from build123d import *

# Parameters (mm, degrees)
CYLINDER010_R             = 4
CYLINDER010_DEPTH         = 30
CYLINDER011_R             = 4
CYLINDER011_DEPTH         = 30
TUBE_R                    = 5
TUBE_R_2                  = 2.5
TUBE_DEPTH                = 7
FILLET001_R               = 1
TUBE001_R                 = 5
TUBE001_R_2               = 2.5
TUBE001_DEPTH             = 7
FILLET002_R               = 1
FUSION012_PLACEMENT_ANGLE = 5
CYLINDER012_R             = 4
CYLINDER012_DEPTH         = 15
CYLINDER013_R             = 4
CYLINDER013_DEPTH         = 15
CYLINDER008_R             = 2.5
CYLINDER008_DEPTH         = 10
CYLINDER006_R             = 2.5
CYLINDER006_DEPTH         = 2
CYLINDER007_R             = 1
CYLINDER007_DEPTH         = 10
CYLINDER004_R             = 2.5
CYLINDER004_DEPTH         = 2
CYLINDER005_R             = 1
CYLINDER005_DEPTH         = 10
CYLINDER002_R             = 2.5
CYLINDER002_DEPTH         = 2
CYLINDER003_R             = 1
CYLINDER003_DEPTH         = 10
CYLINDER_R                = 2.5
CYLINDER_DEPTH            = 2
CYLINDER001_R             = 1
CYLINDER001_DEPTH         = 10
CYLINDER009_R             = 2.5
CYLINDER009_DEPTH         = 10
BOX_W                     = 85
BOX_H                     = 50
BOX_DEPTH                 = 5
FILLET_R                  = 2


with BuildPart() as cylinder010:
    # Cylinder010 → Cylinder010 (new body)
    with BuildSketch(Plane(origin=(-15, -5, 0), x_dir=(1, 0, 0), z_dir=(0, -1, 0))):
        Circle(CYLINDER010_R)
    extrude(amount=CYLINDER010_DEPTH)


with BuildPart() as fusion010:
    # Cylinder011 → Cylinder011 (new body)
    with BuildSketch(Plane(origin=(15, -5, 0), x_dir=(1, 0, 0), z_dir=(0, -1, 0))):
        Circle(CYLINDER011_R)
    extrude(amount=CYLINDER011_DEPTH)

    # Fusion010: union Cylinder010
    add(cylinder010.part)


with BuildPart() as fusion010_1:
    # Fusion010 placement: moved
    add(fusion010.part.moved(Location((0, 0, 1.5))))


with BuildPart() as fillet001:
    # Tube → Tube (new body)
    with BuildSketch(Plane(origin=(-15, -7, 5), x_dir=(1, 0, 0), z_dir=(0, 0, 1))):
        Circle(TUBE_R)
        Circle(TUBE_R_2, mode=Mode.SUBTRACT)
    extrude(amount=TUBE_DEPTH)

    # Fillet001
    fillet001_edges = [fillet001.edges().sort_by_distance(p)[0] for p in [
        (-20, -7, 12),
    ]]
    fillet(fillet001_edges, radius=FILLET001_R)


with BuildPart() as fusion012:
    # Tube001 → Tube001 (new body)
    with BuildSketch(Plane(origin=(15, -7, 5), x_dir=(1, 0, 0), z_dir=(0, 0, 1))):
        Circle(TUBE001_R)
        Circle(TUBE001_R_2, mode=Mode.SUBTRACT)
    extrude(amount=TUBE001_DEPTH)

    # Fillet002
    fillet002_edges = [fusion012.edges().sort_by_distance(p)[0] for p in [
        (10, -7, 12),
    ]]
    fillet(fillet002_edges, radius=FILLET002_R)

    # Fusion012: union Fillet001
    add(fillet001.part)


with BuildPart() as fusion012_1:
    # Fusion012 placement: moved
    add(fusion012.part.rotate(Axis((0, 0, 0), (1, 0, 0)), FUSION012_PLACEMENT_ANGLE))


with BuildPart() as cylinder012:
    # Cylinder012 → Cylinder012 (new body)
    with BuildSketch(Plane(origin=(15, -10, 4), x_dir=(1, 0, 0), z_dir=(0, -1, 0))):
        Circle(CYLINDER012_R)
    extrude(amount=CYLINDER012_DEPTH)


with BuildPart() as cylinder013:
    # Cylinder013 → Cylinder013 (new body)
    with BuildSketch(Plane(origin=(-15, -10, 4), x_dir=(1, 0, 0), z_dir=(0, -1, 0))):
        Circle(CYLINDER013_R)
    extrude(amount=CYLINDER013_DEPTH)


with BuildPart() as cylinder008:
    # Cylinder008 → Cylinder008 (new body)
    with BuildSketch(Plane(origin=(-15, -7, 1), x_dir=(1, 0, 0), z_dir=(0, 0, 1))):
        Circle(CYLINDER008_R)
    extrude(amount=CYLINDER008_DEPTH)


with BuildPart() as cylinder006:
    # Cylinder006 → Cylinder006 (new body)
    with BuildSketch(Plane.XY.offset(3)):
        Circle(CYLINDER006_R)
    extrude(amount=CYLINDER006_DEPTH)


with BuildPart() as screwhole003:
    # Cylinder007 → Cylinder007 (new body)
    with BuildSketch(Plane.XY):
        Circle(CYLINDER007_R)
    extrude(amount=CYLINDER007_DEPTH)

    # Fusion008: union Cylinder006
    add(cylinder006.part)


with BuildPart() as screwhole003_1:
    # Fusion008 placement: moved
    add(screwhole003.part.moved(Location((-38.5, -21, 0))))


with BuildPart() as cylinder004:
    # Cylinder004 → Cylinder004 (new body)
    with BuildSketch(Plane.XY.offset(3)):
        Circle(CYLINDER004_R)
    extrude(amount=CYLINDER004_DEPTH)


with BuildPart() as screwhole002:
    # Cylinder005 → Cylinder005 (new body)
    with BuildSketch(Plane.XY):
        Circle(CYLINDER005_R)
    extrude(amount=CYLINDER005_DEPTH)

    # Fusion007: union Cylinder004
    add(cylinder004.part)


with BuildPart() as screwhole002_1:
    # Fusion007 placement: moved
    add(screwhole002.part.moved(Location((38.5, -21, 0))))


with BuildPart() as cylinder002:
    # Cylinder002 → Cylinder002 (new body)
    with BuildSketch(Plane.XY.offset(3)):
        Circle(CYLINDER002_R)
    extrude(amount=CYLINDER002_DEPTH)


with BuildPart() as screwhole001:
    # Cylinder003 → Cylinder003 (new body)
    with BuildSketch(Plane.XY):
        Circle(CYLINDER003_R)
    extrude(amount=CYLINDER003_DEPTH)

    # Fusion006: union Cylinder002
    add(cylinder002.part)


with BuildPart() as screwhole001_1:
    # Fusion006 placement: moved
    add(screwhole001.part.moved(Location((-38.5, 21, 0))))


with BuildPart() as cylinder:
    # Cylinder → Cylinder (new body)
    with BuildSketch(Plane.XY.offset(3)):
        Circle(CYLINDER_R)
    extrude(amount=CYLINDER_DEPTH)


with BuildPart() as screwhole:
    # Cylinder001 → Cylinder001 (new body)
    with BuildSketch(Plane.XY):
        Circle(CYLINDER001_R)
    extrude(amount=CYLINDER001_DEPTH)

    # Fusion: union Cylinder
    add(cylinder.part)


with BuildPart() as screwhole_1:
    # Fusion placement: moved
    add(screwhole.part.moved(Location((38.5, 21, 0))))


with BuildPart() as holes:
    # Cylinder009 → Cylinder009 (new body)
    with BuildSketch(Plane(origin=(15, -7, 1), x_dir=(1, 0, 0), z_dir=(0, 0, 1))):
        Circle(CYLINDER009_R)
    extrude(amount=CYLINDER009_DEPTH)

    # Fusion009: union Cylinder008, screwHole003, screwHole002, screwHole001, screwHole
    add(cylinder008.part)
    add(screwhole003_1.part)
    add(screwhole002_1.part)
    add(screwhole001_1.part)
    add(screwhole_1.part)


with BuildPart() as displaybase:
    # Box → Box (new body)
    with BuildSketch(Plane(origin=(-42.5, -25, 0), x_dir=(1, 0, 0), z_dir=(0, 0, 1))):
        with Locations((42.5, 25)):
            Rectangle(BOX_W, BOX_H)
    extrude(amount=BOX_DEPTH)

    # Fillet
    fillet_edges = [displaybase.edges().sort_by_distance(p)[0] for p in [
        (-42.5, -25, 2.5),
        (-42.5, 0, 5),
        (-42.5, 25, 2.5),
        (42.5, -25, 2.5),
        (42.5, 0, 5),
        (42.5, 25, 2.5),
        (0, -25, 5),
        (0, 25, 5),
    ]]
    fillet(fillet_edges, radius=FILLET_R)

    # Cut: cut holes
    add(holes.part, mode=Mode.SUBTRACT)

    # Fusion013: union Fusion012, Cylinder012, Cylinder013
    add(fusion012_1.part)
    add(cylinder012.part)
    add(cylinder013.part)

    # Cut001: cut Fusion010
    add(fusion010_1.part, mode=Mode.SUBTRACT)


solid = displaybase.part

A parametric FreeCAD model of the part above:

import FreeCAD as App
import Part
import Sketcher


def edges_at(feature, points):
    """Names of the edges that pass closest to the given points."""
    edges = feature.Shape.Edges
    near = lambda p: min(range(len(edges)), key=lambda i: edges[i].distToShape(Part.Vertex(*p))[0])
    return sorted({f"Edge{near(p) + 1}" for p in points})


def add_polygon(sketch, points):
    """Adds a closed chain of lines whose ends are joined by coincident constraints."""
    first, n = sketch.GeometryCount, len(points)
    for a, b in zip(points, points[1:] + points[:1]):
        sketch.addGeometry(Part.LineSegment(App.Vector(*a, 0), App.Vector(*b, 0)), False)
    for i in range(n):
        sketch.addConstraint(Sketcher.Constraint("Coincident", first + i, 2, first + (i + 1) % n, 1))

doc = App.newDocument("Part")
body = doc.addObject("PartDesign::Body", "Body")

sketch1 = body.newObject("Sketcher::SketchObject", "Sketch")
sketch1.AttachmentSupport = (doc.getObject("XZ_Plane"), [""])
sketch1.MapMode = "FlatFace"
sketch1.AttachmentOffset = App.Placement(App.Vector(0, 0, 5), App.Rotation())
sketch1.addGeometry(Part.Circle(App.Vector(-15, 0, 0), App.Vector(0, 0, 1), 4), False)
sketch1.addConstraint([
    Sketcher.Constraint("PointOnObject", 0, 3, -1),
    Sketcher.Constraint("Diameter", 0, 8.0),
    Sketcher.Constraint("DistanceX", 0, 3, -1, 1, 15.0),
])
pad1 = body.newObject("PartDesign::Pad", "Pad")
pad1.Profile = sketch1
pad1.Length = 30
body2 = doc.addObject("PartDesign::Body", "Body001")
body2.AllowCompound = True

sketch2 = body2.newObject("Sketcher::SketchObject", "Sketch001")
sketch2.AttachmentSupport = (doc.getObject("XZ_Plane001"), [""])
sketch2.MapMode = "FlatFace"
sketch2.AttachmentOffset = App.Placement(App.Vector(0, 0, 5), App.Rotation())
sketch2.addGeometry(Part.Circle(App.Vector(15, 0, 0), App.Vector(0, 0, 1), 4), False)
sketch2.addConstraint([
    Sketcher.Constraint("PointOnObject", 0, 3, -1),
    Sketcher.Constraint("Diameter", 0, 8.0),
    Sketcher.Constraint("DistanceX", -1, 1, 0, 3, 15.0),
])
pad2 = body2.newObject("PartDesign::Pad", "Pad001")
pad2.Profile = sketch2
pad2.Length = 30
doc.recompute()

boolean = body2.newObject("PartDesign::Boolean", "Boolean")
boolean.Type = "Fuse"
boolean.addObjects([body])
body3 = doc.addObject("PartDesign::Body", "Body002")
body3.AllowCompound = True
doc.recompute()

body2.Placement = App.Placement(App.Vector(0, 0, 1.5), App.Rotation(App.Vector(0, 0, 1), 0))
boolean2 = body3.newObject("PartDesign::Boolean", "Boolean001")
boolean2.Type = "Fuse"
boolean2.addObjects([body2])
body4 = doc.addObject("PartDesign::Body", "Body003")

sketch3 = body4.newObject("Sketcher::SketchObject", "Sketch002")
sketch3.AttachmentSupport = (doc.getObject("XY_Plane003"), [""])
sketch3.MapMode = "FlatFace"
sketch3.AttachmentOffset = App.Placement(App.Vector(0, 0, 5), App.Rotation())
sketch3.addGeometry([
    Part.Circle(App.Vector(-15, -7, 0), App.Vector(0, 0, 1), 5),
    Part.Circle(App.Vector(-15, -7, 0), App.Vector(0, 0, 1), 2.5),
], False)
sketch3.addConstraint([
    Sketcher.Constraint("Coincident", 1, 3, 0, 3),
    Sketcher.Constraint("Diameter", 0, 10.0),
    Sketcher.Constraint("Diameter", 1, 5.0),
    Sketcher.Constraint("DistanceX", 0, 3, -1, 1, 15.0),
    Sketcher.Constraint("DistanceY", 0, 3, -1, 1, 7.0),
])
pad3 = body4.newObject("PartDesign::Pad", "Pad002")
pad3.Profile = sketch3
pad3.Length = 7
doc.recompute()

fillet = body4.newObject("PartDesign::Fillet", "Fillet")
fillet.Base = (pad3, edges_at(pad3, [(-20, -7, 12)]))
fillet.Radius = 1
body5 = doc.addObject("PartDesign::Body", "Body004")
body5.AllowCompound = True

sketch4 = body5.newObject("Sketcher::SketchObject", "Sketch003")
sketch4.AttachmentSupport = (doc.getObject("XY_Plane004"), [""])
sketch4.MapMode = "FlatFace"
sketch4.AttachmentOffset = App.Placement(App.Vector(0, 0, 5), App.Rotation())
sketch4.addGeometry([
    Part.Circle(App.Vector(15, -7, 0), App.Vector(0, 0, 1), 5),
    Part.Circle(App.Vector(15, -7, 0), App.Vector(0, 0, 1), 2.5),
], False)
sketch4.addConstraint([
    Sketcher.Constraint("Coincident", 1, 3, 0, 3),
    Sketcher.Constraint("Diameter", 0, 10.0),
    Sketcher.Constraint("Diameter", 1, 5.0),
    Sketcher.Constraint("DistanceX", -1, 1, 0, 3, 15.0),
    Sketcher.Constraint("DistanceY", 0, 3, -1, 1, 7.0),
])
pad4 = body5.newObject("PartDesign::Pad", "Pad003")
pad4.Profile = sketch4
pad4.Length = 7
doc.recompute()

fillet2 = body5.newObject("PartDesign::Fillet", "Fillet001")
fillet2.Base = (pad4, edges_at(pad4, [(10, -7, 12)]))
fillet2.Radius = 1
doc.recompute()

boolean3 = body5.newObject("PartDesign::Boolean", "Boolean002")
boolean3.Type = "Fuse"
boolean3.addObjects([body4])
body6 = doc.addObject("PartDesign::Body", "Body005")
body6.AllowCompound = True
doc.recompute()

body5.Placement = App.Placement(App.Vector(0, 0, 0), App.Rotation(App.Vector(1, 0, 0), 5))
boolean4 = body6.newObject("PartDesign::Boolean", "Boolean003")
boolean4.Type = "Fuse"
boolean4.addObjects([body5])
body7 = doc.addObject("PartDesign::Body", "Body006")

sketch5 = body7.newObject("Sketcher::SketchObject", "Sketch004")
sketch5.AttachmentSupport = (doc.getObject("XZ_Plane006"), [""])
sketch5.MapMode = "FlatFace"
sketch5.AttachmentOffset = App.Placement(App.Vector(0, 0, 10), App.Rotation())
sketch5.addGeometry(Part.Circle(App.Vector(15, 4, 0), App.Vector(0, 0, 1), 4), False)
sketch5.addConstraint([
    Sketcher.Constraint("Diameter", 0, 8.0),
    Sketcher.Constraint("DistanceX", -1, 1, 0, 3, 15.0),
    Sketcher.Constraint("DistanceY", -1, 1, 0, 3, 4.0),
])
pad5 = body7.newObject("PartDesign::Pad", "Pad004")
pad5.Profile = sketch5
pad5.Length = 15
body8 = doc.addObject("PartDesign::Body", "Body007")

sketch6 = body8.newObject("Sketcher::SketchObject", "Sketch005")
sketch6.AttachmentSupport = (doc.getObject("XZ_Plane007"), [""])
sketch6.MapMode = "FlatFace"
sketch6.AttachmentOffset = App.Placement(App.Vector(0, 0, 10), App.Rotation())
sketch6.addGeometry(Part.Circle(App.Vector(-15, 4, 0), App.Vector(0, 0, 1), 4), False)
sketch6.addConstraint([
    Sketcher.Constraint("Diameter", 0, 8.0),
    Sketcher.Constraint("DistanceX", 0, 3, -1, 1, 15.0),
    Sketcher.Constraint("DistanceY", -1, 1, 0, 3, 4.0),
])
pad6 = body8.newObject("PartDesign::Pad", "Pad005")
pad6.Profile = sketch6
pad6.Length = 15
body9 = doc.addObject("PartDesign::Body", "Body008")

sketch7 = body9.newObject("Sketcher::SketchObject", "Sketch006")
sketch7.AttachmentSupport = (doc.getObject("XY_Plane008"), [""])
sketch7.MapMode = "FlatFace"
sketch7.AttachmentOffset = App.Placement(App.Vector(0, 0, 1), App.Rotation())
sketch7.addGeometry(Part.Circle(App.Vector(-15, -7, 0), App.Vector(0, 0, 1), 2.5), False)
sketch7.addConstraint([
    Sketcher.Constraint("Diameter", 0, 5.0),
    Sketcher.Constraint("DistanceX", 0, 3, -1, 1, 15.0),
    Sketcher.Constraint("DistanceY", 0, 3, -1, 1, 7.0),
])
pad7 = body9.newObject("PartDesign::Pad", "Pad006")
pad7.Profile = sketch7
pad7.Length = 10
body10 = doc.addObject("PartDesign::Body", "Body009")

sketch8 = body10.newObject("Sketcher::SketchObject", "Sketch007")
sketch8.AttachmentSupport = (doc.getObject("XY_Plane009"), [""])
sketch8.MapMode = "FlatFace"
sketch8.AttachmentOffset = App.Placement(App.Vector(0, 0, 3), App.Rotation())
sketch8.addGeometry(Part.Circle(App.Vector(0, 0, 0), App.Vector(0, 0, 1), 2.5), False)
sketch8.addConstraint([
    Sketcher.Constraint("Coincident", 0, 3, -1, 1),
    Sketcher.Constraint("Diameter", 0, 5.0),
])
pad8 = body10.newObject("PartDesign::Pad", "Pad007")
pad8.Profile = sketch8
pad8.Length = 2
body11 = doc.addObject("PartDesign::Body", "Body010")

sketch9 = body11.newObject("Sketcher::SketchObject", "Sketch008")
sketch9.AttachmentSupport = (doc.getObject("XY_Plane010"), [""])
sketch9.MapMode = "FlatFace"
sketch9.addGeometry(Part.Circle(App.Vector(0, 0, 0), App.Vector(0, 0, 1), 1), False)
sketch9.addConstraint([
    Sketcher.Constraint("Coincident", 0, 3, -1, 1),
    Sketcher.Constraint("Diameter", 0, 2.0),
])
pad9 = body11.newObject("PartDesign::Pad", "Pad008")
pad9.Profile = sketch9
pad9.Length = 10
doc.recompute()

boolean5 = body11.newObject("PartDesign::Boolean", "Boolean004")
boolean5.Type = "Fuse"
boolean5.addObjects([body10])
body12 = doc.addObject("PartDesign::Body", "Body011")
doc.recompute()

body11.Placement = App.Placement(App.Vector(-38.5, -21, 0), App.Rotation(App.Vector(0, 0, 1), 0))
boolean6 = body12.newObject("PartDesign::Boolean", "Boolean005")
boolean6.Type = "Fuse"
boolean6.addObjects([body11])
body13 = doc.addObject("PartDesign::Body", "Body012")

sketch10 = body13.newObject("Sketcher::SketchObject", "Sketch009")
sketch10.AttachmentSupport = (doc.getObject("XY_Plane012"), [""])
sketch10.MapMode = "FlatFace"
sketch10.AttachmentOffset = App.Placement(App.Vector(0, 0, 3), App.Rotation())
sketch10.addGeometry(Part.Circle(App.Vector(0, 0, 0), App.Vector(0, 0, 1), 2.5), False)
sketch10.addConstraint([
    Sketcher.Constraint("Coincident", 0, 3, -1, 1),
    Sketcher.Constraint("Diameter", 0, 5.0),
])
pad10 = body13.newObject("PartDesign::Pad", "Pad009")
pad10.Profile = sketch10
pad10.Length = 2
body14 = doc.addObject("PartDesign::Body", "Body013")

sketch11 = body14.newObject("Sketcher::SketchObject", "Sketch010")
sketch11.AttachmentSupport = (doc.getObject("XY_Plane013"), [""])
sketch11.MapMode = "FlatFace"
sketch11.addGeometry(Part.Circle(App.Vector(0, 0, 0), App.Vector(0, 0, 1), 1), False)
sketch11.addConstraint([
    Sketcher.Constraint("Coincident", 0, 3, -1, 1),
    Sketcher.Constraint("Diameter", 0, 2.0),
])
pad11 = body14.newObject("PartDesign::Pad", "Pad010")
pad11.Profile = sketch11
pad11.Length = 10
doc.recompute()

boolean7 = body14.newObject("PartDesign::Boolean", "Boolean006")
boolean7.Type = "Fuse"
boolean7.addObjects([body13])
body15 = doc.addObject("PartDesign::Body", "Body014")
doc.recompute()

body14.Placement = App.Placement(App.Vector(38.5, -21, 0), App.Rotation(App.Vector(0, 0, 1), 0))
boolean8 = body15.newObject("PartDesign::Boolean", "Boolean007")
boolean8.Type = "Fuse"
boolean8.addObjects([body14])
body16 = doc.addObject("PartDesign::Body", "Body015")

sketch12 = body16.newObject("Sketcher::SketchObject", "Sketch011")
sketch12.AttachmentSupport = (doc.getObject("XY_Plane015"), [""])
sketch12.MapMode = "FlatFace"
sketch12.AttachmentOffset = App.Placement(App.Vector(0, 0, 3), App.Rotation())
sketch12.addGeometry(Part.Circle(App.Vector(0, 0, 0), App.Vector(0, 0, 1), 2.5), False)
sketch12.addConstraint([
    Sketcher.Constraint("Coincident", 0, 3, -1, 1),
    Sketcher.Constraint("Diameter", 0, 5.0),
])
pad12 = body16.newObject("PartDesign::Pad", "Pad011")
pad12.Profile = sketch12
pad12.Length = 2
body17 = doc.addObject("PartDesign::Body", "Body016")

sketch13 = body17.newObject("Sketcher::SketchObject", "Sketch012")
sketch13.AttachmentSupport = (doc.getObject("XY_Plane016"), [""])
sketch13.MapMode = "FlatFace"
sketch13.addGeometry(Part.Circle(App.Vector(0, 0, 0), App.Vector(0, 0, 1), 1), False)
sketch13.addConstraint([
    Sketcher.Constraint("Coincident", 0, 3, -1, 1),
    Sketcher.Constraint("Diameter", 0, 2.0),
])
pad13 = body17.newObject("PartDesign::Pad", "Pad012")
pad13.Profile = sketch13
pad13.Length = 10
doc.recompute()

boolean9 = body17.newObject("PartDesign::Boolean", "Boolean008")
boolean9.Type = "Fuse"
boolean9.addObjects([body16])
body18 = doc.addObject("PartDesign::Body", "Body017")
doc.recompute()

body17.Placement = App.Placement(App.Vector(-38.5, 21, 0), App.Rotation(App.Vector(0, 0, 1), 0))
boolean10 = body18.newObject("PartDesign::Boolean", "Boolean009")
boolean10.Type = "Fuse"
boolean10.addObjects([body17])
body19 = doc.addObject("PartDesign::Body", "Body018")

sketch14 = body19.newObject("Sketcher::SketchObject", "Sketch013")
sketch14.AttachmentSupport = (doc.getObject("XY_Plane018"), [""])
sketch14.MapMode = "FlatFace"
sketch14.AttachmentOffset = App.Placement(App.Vector(0, 0, 3), App.Rotation())
sketch14.addGeometry(Part.Circle(App.Vector(0, 0, 0), App.Vector(0, 0, 1), 2.5), False)
sketch14.addConstraint([
    Sketcher.Constraint("Coincident", 0, 3, -1, 1),
    Sketcher.Constraint("Diameter", 0, 5.0),
])
pad14 = body19.newObject("PartDesign::Pad", "Pad013")
pad14.Profile = sketch14
pad14.Length = 2
body20 = doc.addObject("PartDesign::Body", "Body019")

sketch15 = body20.newObject("Sketcher::SketchObject", "Sketch014")
sketch15.AttachmentSupport = (doc.getObject("XY_Plane019"), [""])
sketch15.MapMode = "FlatFace"
sketch15.addGeometry(Part.Circle(App.Vector(0, 0, 0), App.Vector(0, 0, 1), 1), False)
sketch15.addConstraint([
    Sketcher.Constraint("Coincident", 0, 3, -1, 1),
    Sketcher.Constraint("Diameter", 0, 2.0),
])
pad15 = body20.newObject("PartDesign::Pad", "Pad014")
pad15.Profile = sketch15
pad15.Length = 10
doc.recompute()

boolean11 = body20.newObject("PartDesign::Boolean", "Boolean010")
boolean11.Type = "Fuse"
boolean11.addObjects([body19])
body21 = doc.addObject("PartDesign::Body", "Body020")
doc.recompute()

body20.Placement = App.Placement(App.Vector(38.5, 21, 0), App.Rotation(App.Vector(0, 0, 1), 0))
boolean12 = body21.newObject("PartDesign::Boolean", "Boolean011")
boolean12.Type = "Fuse"
boolean12.addObjects([body20])
body22 = doc.addObject("PartDesign::Body", "Body021")
body22.AllowCompound = True

sketch16 = body22.newObject("Sketcher::SketchObject", "Sketch015")
sketch16.AttachmentSupport = (doc.getObject("XY_Plane021"), [""])
sketch16.MapMode = "FlatFace"
sketch16.AttachmentOffset = App.Placement(App.Vector(0, 0, 1), App.Rotation())
sketch16.addGeometry(Part.Circle(App.Vector(15, -7, 0), App.Vector(0, 0, 1), 2.5), False)
sketch16.addConstraint([
    Sketcher.Constraint("Diameter", 0, 5.0),
    Sketcher.Constraint("DistanceX", -1, 1, 0, 3, 15.0),
    Sketcher.Constraint("DistanceY", 0, 3, -1, 1, 7.0),
])
pad16 = body22.newObject("PartDesign::Pad", "Pad015")
pad16.Profile = sketch16
pad16.Length = 10
doc.recompute()

boolean13 = body22.newObject("PartDesign::Boolean", "Boolean012")
boolean13.Type = "Fuse"
boolean13.addObjects([body9])
doc.recompute()

boolean14 = body22.newObject("PartDesign::Boolean", "Boolean013")
boolean14.Type = "Fuse"
boolean14.addObjects([body12])
doc.recompute()

boolean15 = body22.newObject("PartDesign::Boolean", "Boolean014")
boolean15.Type = "Fuse"
boolean15.addObjects([body15])
doc.recompute()

boolean16 = body22.newObject("PartDesign::Boolean", "Boolean015")
boolean16.Type = "Fuse"
boolean16.addObjects([body18])
doc.recompute()

boolean17 = body22.newObject("PartDesign::Boolean", "Boolean016")
boolean17.Type = "Fuse"
boolean17.addObjects([body21])
body23 = doc.addObject("PartDesign::Body", "Body022")

sketch17 = body23.newObject("Sketcher::SketchObject", "Sketch016")
sketch17.AttachmentSupport = (doc.getObject("XY_Plane022"), [""])
sketch17.MapMode = "FlatFace"
add_polygon(sketch17, [(-42, 25), (-42, -25), (42, -25), (42, 25)])
sketch17.addConstraint([
    Sketcher.Constraint("Vertical", 0),
    Sketcher.Constraint("Horizontal", 1),
    Sketcher.Constraint("Vertical", 2),
    Sketcher.Constraint("Horizontal", 3),
    Sketcher.Constraint("Symmetric", 0, 2, 2, 2, -1, 1),
    Sketcher.Constraint("DistanceX", 1, 1, 1, 2, 85.0),
    Sketcher.Constraint("DistanceY", 0, 2, 0, 1, 50.0),
])
pad17 = body23.newObject("PartDesign::Pad", "Pad016")
pad17.Profile = sketch17
pad17.Length = 5
doc.recompute()

fillet3 = body23.newObject("PartDesign::Fillet", "Fillet002")
fillet3.Base = (pad17, edges_at(pad17, [
    (-42.5, -25, 2.5),
    (-42.5, 0, 5),
    (-42.5, 25, 2.5),
    (42.5, -25, 2.5),
    (42.5, 0, 5),
    (42.5, 25, 2.5),
    (0, -25, 5),
    (0, 25, 5),
]))
fillet3.Radius = 2
doc.recompute()

boolean18 = body23.newObject("PartDesign::Boolean", "Boolean017")
boolean18.Type = "Cut"
boolean18.addObjects([body22])
doc.recompute()

boolean19 = body23.newObject("PartDesign::Boolean", "Boolean018")
boolean19.Type = "Fuse"
boolean19.addObjects([body6])
doc.recompute()

boolean20 = body23.newObject("PartDesign::Boolean", "Boolean019")
boolean20.Type = "Fuse"
boolean20.addObjects([body7])
doc.recompute()

boolean21 = body23.newObject("PartDesign::Boolean", "Boolean020")
boolean21.Type = "Fuse"
boolean21.addObjects([body8])
doc.recompute()

boolean22 = body23.newObject("PartDesign::Boolean", "Boolean021")
boolean22.Type = "Cut"
boolean22.addObjects([body3])

doc.recompute()
